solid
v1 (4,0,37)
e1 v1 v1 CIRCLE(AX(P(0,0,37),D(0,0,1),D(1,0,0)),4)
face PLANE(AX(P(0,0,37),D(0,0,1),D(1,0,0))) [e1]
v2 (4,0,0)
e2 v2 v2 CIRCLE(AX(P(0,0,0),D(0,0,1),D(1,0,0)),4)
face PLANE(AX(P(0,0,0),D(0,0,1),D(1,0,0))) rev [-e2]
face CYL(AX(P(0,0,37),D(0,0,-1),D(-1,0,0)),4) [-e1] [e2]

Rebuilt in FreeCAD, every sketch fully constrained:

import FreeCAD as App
import Part
import Sketcher
from FreeCAD import Vector

doc = App.newDocument("Part")
params = doc.addObject("Spreadsheet::Sheet", "Params")
for row, (alias, value) in enumerate([
    ("sketch1_diameter", "8 mm"),
    ("pad1_length", "37 mm"),
], start=1):
    params.set(f"A{row}", alias)
    params.set(f"B{row}", "=" + value)
    params.setAlias(f"B{row}", alias)

body = doc.addObject("PartDesign::Body", "Body")

sketch1 = body.newObject("Sketcher::SketchObject", "Sketch")
sketch1.AttachmentSupport = (doc.getObject("XY_Plane"), [""])
sketch1.MapMode = "FlatFace"
sketch1.addGeometry(Part.Circle(Vector(0, 0, 0), Vector(0, 0, 1), 4), False)
sketch1.addConstraint([
    Sketcher.Constraint("Coincident", 0, 3, -1, 1),
    Sketcher.Constraint("Diameter", 0, 8.0),
])
sketch1.setExpression("Constraints[1]", "Params.sketch1_diameter")
pad1 = body.newObject("PartDesign::Pad", "Pad")
pad1.Profile = sketch1
pad1.setExpression("Length", "Params.pad1_length")

doc.recompute()
